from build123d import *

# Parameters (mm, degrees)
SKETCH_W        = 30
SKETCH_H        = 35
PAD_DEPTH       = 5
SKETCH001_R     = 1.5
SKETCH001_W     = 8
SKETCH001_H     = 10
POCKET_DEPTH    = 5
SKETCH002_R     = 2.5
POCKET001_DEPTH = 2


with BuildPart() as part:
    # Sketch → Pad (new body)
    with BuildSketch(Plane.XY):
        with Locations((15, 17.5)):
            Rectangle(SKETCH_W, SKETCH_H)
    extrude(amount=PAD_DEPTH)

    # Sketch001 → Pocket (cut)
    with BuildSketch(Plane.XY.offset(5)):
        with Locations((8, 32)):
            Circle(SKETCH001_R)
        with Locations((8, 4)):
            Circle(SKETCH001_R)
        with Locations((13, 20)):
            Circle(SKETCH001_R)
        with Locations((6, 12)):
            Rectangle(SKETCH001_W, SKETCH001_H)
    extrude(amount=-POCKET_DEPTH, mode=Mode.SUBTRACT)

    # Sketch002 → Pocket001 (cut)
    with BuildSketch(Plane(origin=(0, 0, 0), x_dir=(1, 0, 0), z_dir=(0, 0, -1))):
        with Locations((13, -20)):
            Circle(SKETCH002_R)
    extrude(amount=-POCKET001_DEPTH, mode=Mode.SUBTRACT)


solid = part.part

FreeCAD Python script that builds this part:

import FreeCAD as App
import Part
import Sketcher
from FreeCAD import Vector

doc = App.newDocument("Part")
body = doc.addObject("PartDesign::Body", "Body")

sketch1 = body.newObject("Sketcher::SketchObject", "Sketch")
sketch1.AttachmentSupport = (doc.getObject("XY_Plane"), [""])
sketch1.MapMode = "FlatFace"
sketch1.addGeometry(Part.LineSegment(Vector(0, 35, 0), Vector(0, 0, 0)), False)
sketch1.addGeometry(Part.LineSegment(Vector(0, 0, 0), Vector(30, 0, 0)), False)
sketch1.addGeometry(Part.LineSegment(Vector(30, 0, 0), Vector(30, 35, 0)), False)
sketch1.addGeometry(Part.LineSegment(Vector(30, 35, 0), Vector(0, 35, 0)), False)
sketch1.addConstraint(Sketcher.Constraint("Coincident", 0, 2, 1, 1))
sketch1.addConstraint(Sketcher.Constraint("Coincident", 1, 2, 2, 1))
sketch1.addConstraint(Sketcher.Constraint("Coincident", 2, 2, 3, 1))
sketch1.addConstraint(Sketcher.Constraint("Coincident", 3, 2, 0, 1))
sketch1.addConstraint(Sketcher.Constraint("Vertical", 0))
sketch1.addConstraint(Sketcher.Constraint("Horizontal", 1))
sketch1.addConstraint(Sketcher.Constraint("Vertical", 2))
sketch1.addConstraint(Sketcher.Constraint("Horizontal", 3))
sketch1.addConstraint(Sketcher.Constraint("Coincident", 0, 2, -1, 1))
sketch1.addConstraint(Sketcher.Constraint("DistanceX", 1, 1, 1, 2, 30.0))
sketch1.addConstraint(Sketcher.Constraint("DistanceY", 0, 2, 0, 1, 35.0))
pad1 = body.newObject("PartDesign::Pad", "Pad")
pad1.Profile = sketch1
pad1.Length = 5

sketch2 = body.newObject("Sketcher::SketchObject", "Sketch001")
sketch2.AttachmentSupport = (doc.getObject("XY_Plane"), [""])
sketch2.MapMode = "FlatFace"
sketch2.AttachmentOffset = App.Placement(Vector(0, 0, 5), App.Rotation())
sketch2.addGeometry(Part.Circle(Vector(8, 32, 0), Vector(0, 0, 1), 1.5), False)
sketch2.addGeometry(Part.Circle(Vector(8, 4, 0), Vector(0, 0, 1), 1.5), False)
sketch2.addGeometry(Part.Circle(Vector(13, 20, 0), Vector(0, 0, 1), 1.5), False)
sketch2.addGeometry(Part.LineSegment(Vector(2, 17, 0), Vector(2, 7, 0)), False)
sketch2.addGeometry(Part.LineSegment(Vector(2, 7, 0), Vector(10, 7, 0)), False)
sketch2.addGeometry(Part.LineSegment(Vector(10, 7, 0), Vector(10, 17, 0)), False)
sketch2.addGeometry(Part.LineSegment(Vector(10, 17, 0), Vector(2, 17, 0)), False)
sketch2.addConstraint(Sketcher.Constraint("Coincident", 3, 2, 4, 1))
sketch2.addConstraint(Sketcher.Constraint("Coincident", 4, 2, 5, 1))
sketch2.addConstraint(Sketcher.Constraint("Coincident", 5, 2, 6, 1))
sketch2.addConstraint(Sketcher.Constraint("Coincident", 6, 2, 3, 1))
sketch2.addConstraint(Sketcher.Constraint("Vertical", 3))
sketch2.addConstraint(Sketcher.Constraint("Horizontal", 4))
sketch2.addConstraint(Sketcher.Constraint("Vertical", 5))
sketch2.addConstraint(Sketcher.Constraint("Horizontal", 6))
sketch2.addConstraint(Sketcher.Constraint("Equal", 0, 1))
sketch2.addConstraint(Sketcher.Constraint("Equal", 1, 2))
sketch2.addConstraint(Sketcher.Constraint("Vertical", 0, 3, 1, 3))
sketch2.addConstraint(Sketcher.Constraint("Diameter", 0, 3.0))
sketch2.addConstraint(Sketcher.Constraint("DistanceX", 4, 1, 4, 2, 8.0))
sketch2.addConstraint(Sketcher.Constraint("DistanceY", 3, 2, 3, 1, 10.0))
sketch2.addConstraint(Sketcher.Constraint("DistanceX", -1, 1, 0, 3, 8.0))
sketch2.addConstraint(Sketcher.Constraint("DistanceY", -1, 1, 0, 3, 32.0))
sketch2.addConstraint(Sketcher.Constraint("DistanceY", -1, 1, 1, 3, 4.0))
sketch2.addConstraint(Sketcher.Constraint("DistanceX", -1, 1, 2, 3, 13.0))
sketch2.addConstraint(Sketcher.Constraint("DistanceY", -1, 1, 2, 3, 20.0))
sketch2.addConstraint(Sketcher.Constraint("DistanceX", -1, 1, 3, 2, 2.0))
sketch2.addConstraint(Sketcher.Constraint("DistanceY", -1, 1, 3, 2, 7.0))
pocket1 = body.newObject("PartDesign::Pocket", "Pocket")
pocket1.Profile = sketch2
pocket1.Length = 5

sketch3 = body.newObject("Sketcher::SketchObject", "Sketch002")
sketch3.AttachmentSupport = (doc.getObject("XY_Plane"), [""])
sketch3.MapMode = "FlatFace"
sketch3.addGeometry(Part.Circle(Vector(13, 20, 0), Vector(0, 0, 1), 2.5), False)
sketch3.addConstraint(Sketcher.Constraint("Diameter", 0, 5.0))
sketch3.addConstraint(Sketcher.Constraint("DistanceX", -1, 1, 0, 3, 13.0))
sketch3.addConstraint(Sketcher.Constraint("DistanceY", -1, 1, 0, 3, 20.0))
pocket2 = body.newObject("PartDesign::Pocket", "Pocket001")
pocket2.Profile = sketch3
pocket2.Length = 2
pocket2.Reversed = True

doc.recompute()
